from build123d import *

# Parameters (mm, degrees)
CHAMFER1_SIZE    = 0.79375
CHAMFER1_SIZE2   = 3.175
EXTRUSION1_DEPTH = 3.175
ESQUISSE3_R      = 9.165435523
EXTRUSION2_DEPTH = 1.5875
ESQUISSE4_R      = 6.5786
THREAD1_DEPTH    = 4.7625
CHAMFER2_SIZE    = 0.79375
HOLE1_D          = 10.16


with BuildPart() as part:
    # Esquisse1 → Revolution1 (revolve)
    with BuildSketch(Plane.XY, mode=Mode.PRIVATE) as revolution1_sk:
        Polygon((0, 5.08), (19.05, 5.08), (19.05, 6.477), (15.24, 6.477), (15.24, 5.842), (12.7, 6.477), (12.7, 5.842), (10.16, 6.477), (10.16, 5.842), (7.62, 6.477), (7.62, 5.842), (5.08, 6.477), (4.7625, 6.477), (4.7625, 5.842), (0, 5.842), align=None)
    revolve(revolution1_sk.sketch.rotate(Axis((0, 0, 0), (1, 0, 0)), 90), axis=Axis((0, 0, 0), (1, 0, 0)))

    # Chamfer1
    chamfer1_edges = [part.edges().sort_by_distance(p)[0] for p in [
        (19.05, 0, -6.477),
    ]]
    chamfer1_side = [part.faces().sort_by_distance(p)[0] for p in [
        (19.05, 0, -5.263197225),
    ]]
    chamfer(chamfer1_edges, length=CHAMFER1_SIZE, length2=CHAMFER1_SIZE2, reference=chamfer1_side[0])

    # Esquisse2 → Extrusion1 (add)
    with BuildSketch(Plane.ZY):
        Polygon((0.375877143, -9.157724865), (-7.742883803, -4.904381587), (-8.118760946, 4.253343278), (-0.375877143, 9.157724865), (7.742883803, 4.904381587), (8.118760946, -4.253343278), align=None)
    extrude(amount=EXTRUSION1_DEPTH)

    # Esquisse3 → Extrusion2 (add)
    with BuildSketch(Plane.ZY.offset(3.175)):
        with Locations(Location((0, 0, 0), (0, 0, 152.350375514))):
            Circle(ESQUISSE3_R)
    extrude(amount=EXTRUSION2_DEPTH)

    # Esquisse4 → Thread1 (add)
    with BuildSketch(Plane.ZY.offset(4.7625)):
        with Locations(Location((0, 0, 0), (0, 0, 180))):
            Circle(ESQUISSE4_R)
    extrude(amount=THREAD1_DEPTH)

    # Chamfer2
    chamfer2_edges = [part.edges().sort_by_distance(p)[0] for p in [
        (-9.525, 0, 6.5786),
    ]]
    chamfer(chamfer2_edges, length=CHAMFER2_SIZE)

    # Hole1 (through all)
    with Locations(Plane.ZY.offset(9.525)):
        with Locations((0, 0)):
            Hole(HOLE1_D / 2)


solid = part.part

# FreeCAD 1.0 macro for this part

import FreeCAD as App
import Part
import Sketcher
Q = App.Units.Quantity


def edges_at(feature, points):
    """Names of the edges that pass closest to the given points."""
    edges = feature.Shape.Edges
    near = lambda p: min(range(len(edges)), key=lambda i: edges[i].distToShape(Part.Vertex(*p))[0])
    return sorted({f"Edge{near(p) + 1}" for p in points})

doc = App.newDocument("Part")
body = doc.addObject("PartDesign::Body", "Body")

sketch1 = body.newObject("Sketcher::SketchObject", "Sketch")
sketch1.AttachmentSupport = (doc.getObject("XY_Plane"), [""])
sketch1.MapMode = "FlatFace"
sketch1.addGeometry([
    Part.LineSegment(App.Vector(0, 5.08, 0), App.Vector(19.05, 5.08, 0)),
    Part.LineSegment(App.Vector(19.05, 5.08, 0), App.Vector(19.05, 6.477, 0)),
    Part.LineSegment(App.Vector(19.05, 6.477, 0), App.Vector(15.24, 6.477, 0)),
    Part.LineSegment(App.Vector(15.24, 6.477, 0), App.Vector(15.24, 5.842, 0)),
    Part.LineSegment(App.Vector(15.24, 5.842, 0), App.Vector(12.7, 6.477, 0)),
    Part.LineSegment(App.Vector(12.7, 6.477, 0), App.Vector(12.7, 5.842, 0)),
    Part.LineSegment(App.Vector(12.7, 5.842, 0), App.Vector(10.16, 6.477, 0)),
    Part.LineSegment(App.Vector(10.16, 6.477, 0), App.Vector(10.16, 5.842, 0)),
    Part.LineSegment(App.Vector(10.16, 5.842, 0), App.Vector(7.62, 6.477, 0)),
    Part.LineSegment(App.Vector(7.62, 6.477, 0), App.Vector(7.62, 5.842, 0)),
    Part.LineSegment(App.Vector(7.62, 5.842, 0), App.Vector(5.08, 6.477, 0)),
    Part.LineSegment(App.Vector(5.08, 6.477, 0), App.Vector(4.7625, 6.477, 0)),
    Part.LineSegment(App.Vector(4.7625, 6.477, 0), App.Vector(4.7625, 5.842, 0)),
    Part.LineSegment(App.Vector(4.7625, 5.842, 0), App.Vector(0, 5.842, 0)),
    Part.LineSegment(App.Vector(0, 5.842, 0), App.Vector(0, 5.08, 0)),
], False)
sketch1.addConstraint([
    Sketcher.Constraint("Coincident", 0, 2, 1, 1),
    Sketcher.Constraint("Coincident", 1, 2, 2, 1),
    Sketcher.Constraint("Coincident", 2, 2, 3, 1),
    Sketcher.Constraint("Coincident", 3, 2, 4, 1),
    Sketcher.Constraint("Coincident", 4, 2, 5, 1),
    Sketcher.Constraint("Coincident", 5, 2, 6, 1),
    Sketcher.Constraint("Coincident", 6, 2, 7, 1),
    Sketcher.Constraint("Coincident", 7, 2, 8, 1),
    Sketcher.Constraint("Coincident", 8, 2, 9, 1),
    Sketcher.Constraint("Coincident", 9, 2, 10, 1),
    Sketcher.Constraint("Coincident", 10, 2, 11, 1),
    Sketcher.Constraint("Coincident", 11, 2, 12, 1),
    Sketcher.Constraint("Coincident", 12, 2, 13, 1),
    Sketcher.Constraint("Coincident", 13, 2, 14, 1),
    Sketcher.Constraint("Coincident", 14, 2, 0, 1),
    Sketcher.Constraint("Horizontal", 0),
    Sketcher.Constraint("Vertical", 1),
    Sketcher.Constraint("Horizontal", 2),
    Sketcher.Constraint("Vertical", 3),
    Sketcher.Constraint("Vertical", 5),
    Sketcher.Constraint("Vertical", 7),
    Sketcher.Constraint("Vertical", 9),
    Sketcher.Constraint("Horizontal", 11),
    Sketcher.Constraint("Vertical", 12),
    Sketcher.Constraint("Horizontal", 13),
    Sketcher.Constraint("Vertical", 14),
    Sketcher.Constraint("PointOnObject", 13, 2, -2),
    Sketcher.Constraint("Parallel", 4, 6),
    Sketcher.Constraint("Parallel", 6, 8),
    Sketcher.Constraint("Parallel", 8, 10),
    Sketcher.Constraint("Horizontal", 2, 2, 4, 2),
    Sketcher.Constraint("Horizontal", 3, 2, 5, 2),
    Sketcher.Constraint("Horizontal", 4, 2, 6, 2),
    Sketcher.Constraint("Horizontal", 5, 2, 7, 2),
    Sketcher.Constraint("Horizontal", 6, 2, 8, 2),
    Sketcher.Constraint("Horizontal", 7, 2, 9, 2),
    Sketcher.Constraint("Horizontal", 8, 2, 10, 2),
    Sketcher.Constraint("Horizontal", 9, 2, 12, 2),
    Sketcher.Constraint("DistanceX", 0, 1, 0, 2, Q("0.75 in")),
    Sketcher.Constraint("DistanceX", 2, 2, 2, 1, Q("0.15 in")),
    Sketcher.Constraint("DistanceY", 14, 2, 14, 1, Q("0.03 in")),
    Sketcher.Constraint("DistanceY", -1, 1, 0, 2, Q("0.2 in")),
    Sketcher.Constraint("DistanceX", -1, 1, 4, 2, Q("0.5 in")),
    Sketcher.Constraint("DistanceX", 13, 2, 13, 1, Q("0.1875 in")),
    Sketcher.Constraint("DistanceY", 1, 1, 1, 2, Q("0.055 in")),
])
revolution = body.newObject("PartDesign::Revolution", "Revolution")
revolution.Profile = sketch1
revolution.ReferenceAxis = (sketch1, ["H_Axis"])
revolution.Angle = 360
doc.recompute()

chamfer = body.newObject("PartDesign::Chamfer", "Chamfer")
chamfer.Base = (revolution, edges_at(revolution, [(19.05, 0, -6.477)]))
chamfer.ChamferType = "Two distances"
chamfer.Size = Q("0.03125 in")
chamfer.Size2 = Q("0.125 in")

sketch2 = body.newObject("Sketcher::SketchObject", "Sketch001")
sketch2.AttachmentSupport = (doc.getObject("YZ_Plane"), [""])
sketch2.MapMode = "FlatFace"
sketch2.addGeometry([
    Part.LineSegment(App.Vector(-4.904382, -7.742884, 0), App.Vector(-9.157725, 0.375877, 0)),
    Part.LineSegment(App.Vector(-9.157725, 0.375877, 0), App.Vector(-4.253343, 8.118761, 0)),
    Part.LineSegment(App.Vector(-4.253343, 8.118761, 0), App.Vector(4.904382, 7.742884, 0)),
    Part.LineSegment(App.Vector(4.904382, 7.742884, 0), App.Vector(9.157725, -0.375877, 0)),
    Part.LineSegment(App.Vector(9.157725, -0.375877, 0), App.Vector(4.253343, -8.118761, 0)),
    Part.LineSegment(App.Vector(4.253343, -8.118761, 0), App.Vector(-4.904382, -7.742884, 0)),
], False)
sketch2.addConstraint([
    Sketcher.Constraint("Coincident", 0, 2, 1, 1),
    Sketcher.Constraint("Coincident", 1, 2, 2, 1),
    Sketcher.Constraint("Coincident", 2, 2, 3, 1),
    Sketcher.Constraint("Coincident", 3, 2, 4, 1),
    Sketcher.Constraint("Coincident", 4, 2, 5, 1),
    Sketcher.Constraint("Coincident", 5, 2, 0, 1),
    Sketcher.Constraint("Symmetric", 0, 2, 3, 2, -1, 1),
    Sketcher.Constraint("Symmetric", 1, 2, 4, 2, -1, 1),
    Sketcher.Constraint("Symmetric", 2, 2, 5, 2, -1, 1),
    Sketcher.Constraint("Equal", 0, 1),
    Sketcher.Constraint("Equal", 1, 2),
    Sketcher.Constraint("DistanceY", -1, 1, 1, 2, 8.118761),
    Sketcher.Constraint("DistanceX", -1, 1, 2, 2, 4.904382),
    Sketcher.Constraint("DistanceX", 0, 2, 1, 2, 4.904382),
    Sketcher.Constraint("DistanceY", 3, 2, 2, 2, 8.118761),
])
pad1 = body.newObject("PartDesign::Pad", "Pad")
pad1.Profile = sketch2
pad1.Length = Q("0.125 in")
pad1.Reversed = True

sketch3 = body.newObject("Sketcher::SketchObject", "Sketch002")
sketch3.AttachmentSupport = (doc.getObject("YZ_Plane"), [""])
sketch3.MapMode = "FlatFace"
sketch3.AttachmentOffset = App.Placement(App.Vector(0, 0, -0.125 * 25.4), App.Rotation())
sketch3.addGeometry(Part.Circle(App.Vector(0, 0, 0), App.Vector(0, 0, 1), 9.165436), False)
sketch3.addConstraint([
    Sketcher.Constraint("Coincident", 0, 3, -1, 1),
    Sketcher.Constraint("Diameter", 0, 18.330871),
])
pad2 = body.newObject("PartDesign::Pad", "Pad001")
pad2.Profile = sketch3
pad2.Length = Q("0.0625 in")
pad2.Reversed = True

sketch4 = body.newObject("Sketcher::SketchObject", "Sketch003")
sketch4.AttachmentSupport = (doc.getObject("YZ_Plane"), [""])
sketch4.MapMode = "FlatFace"
sketch4.AttachmentOffset = App.Placement(App.Vector(0, 0, -0.1875 * 25.4), App.Rotation())
sketch4.addGeometry(Part.Circle(App.Vector(0, 0, 0), App.Vector(0, 0, 1), 6.5786), False)
sketch4.addConstraint([
    Sketcher.Constraint("Coincident", 0, 3, -1, 1),
    Sketcher.Constraint("Diameter", 0, Q("0.518 in")),
])
pad3 = body.newObject("PartDesign::Pad", "Pad002")
pad3.Profile = sketch4
pad3.Length = Q("0.1875 in")
pad3.Reversed = True
doc.recompute()

chamfer2 = body.newObject("PartDesign::Chamfer", "Chamfer001")
chamfer2.Base = (pad3, edges_at(pad3, [(-9.525, 0, 6.579)]))
chamfer2.Size = Q("0.03125 in")

sketch5 = body.newObject("Sketcher::SketchObject", "Sketch004")
sketch5.AttachmentSupport = (doc.getObject("YZ_Plane"), [""])
sketch5.MapMode = "FlatFace"
sketch5.AttachmentOffset = App.Placement(App.Vector(0, 0, -0.375 * 25.4), App.Rotation())
sketch5.addGeometry(Part.Circle(App.Vector(0, 0, 0), App.Vector(0, 0, 1), 5.08), False)
sketch5.addConstraint([
    Sketcher.Constraint("Coincident", 0, 3, -1, 1),
    Sketcher.Constraint("Diameter", 0, Q("0.4 in")),
])
doc.recompute()
hole = body.newObject("PartDesign::Hole", "Hole")
hole.Profile = sketch5
hole.ThreadType = "None"
hole.Diameter = Q("0.4 in")
hole.DepthType = "ThroughAll"
hole.Reversed = True

doc.recompute()
